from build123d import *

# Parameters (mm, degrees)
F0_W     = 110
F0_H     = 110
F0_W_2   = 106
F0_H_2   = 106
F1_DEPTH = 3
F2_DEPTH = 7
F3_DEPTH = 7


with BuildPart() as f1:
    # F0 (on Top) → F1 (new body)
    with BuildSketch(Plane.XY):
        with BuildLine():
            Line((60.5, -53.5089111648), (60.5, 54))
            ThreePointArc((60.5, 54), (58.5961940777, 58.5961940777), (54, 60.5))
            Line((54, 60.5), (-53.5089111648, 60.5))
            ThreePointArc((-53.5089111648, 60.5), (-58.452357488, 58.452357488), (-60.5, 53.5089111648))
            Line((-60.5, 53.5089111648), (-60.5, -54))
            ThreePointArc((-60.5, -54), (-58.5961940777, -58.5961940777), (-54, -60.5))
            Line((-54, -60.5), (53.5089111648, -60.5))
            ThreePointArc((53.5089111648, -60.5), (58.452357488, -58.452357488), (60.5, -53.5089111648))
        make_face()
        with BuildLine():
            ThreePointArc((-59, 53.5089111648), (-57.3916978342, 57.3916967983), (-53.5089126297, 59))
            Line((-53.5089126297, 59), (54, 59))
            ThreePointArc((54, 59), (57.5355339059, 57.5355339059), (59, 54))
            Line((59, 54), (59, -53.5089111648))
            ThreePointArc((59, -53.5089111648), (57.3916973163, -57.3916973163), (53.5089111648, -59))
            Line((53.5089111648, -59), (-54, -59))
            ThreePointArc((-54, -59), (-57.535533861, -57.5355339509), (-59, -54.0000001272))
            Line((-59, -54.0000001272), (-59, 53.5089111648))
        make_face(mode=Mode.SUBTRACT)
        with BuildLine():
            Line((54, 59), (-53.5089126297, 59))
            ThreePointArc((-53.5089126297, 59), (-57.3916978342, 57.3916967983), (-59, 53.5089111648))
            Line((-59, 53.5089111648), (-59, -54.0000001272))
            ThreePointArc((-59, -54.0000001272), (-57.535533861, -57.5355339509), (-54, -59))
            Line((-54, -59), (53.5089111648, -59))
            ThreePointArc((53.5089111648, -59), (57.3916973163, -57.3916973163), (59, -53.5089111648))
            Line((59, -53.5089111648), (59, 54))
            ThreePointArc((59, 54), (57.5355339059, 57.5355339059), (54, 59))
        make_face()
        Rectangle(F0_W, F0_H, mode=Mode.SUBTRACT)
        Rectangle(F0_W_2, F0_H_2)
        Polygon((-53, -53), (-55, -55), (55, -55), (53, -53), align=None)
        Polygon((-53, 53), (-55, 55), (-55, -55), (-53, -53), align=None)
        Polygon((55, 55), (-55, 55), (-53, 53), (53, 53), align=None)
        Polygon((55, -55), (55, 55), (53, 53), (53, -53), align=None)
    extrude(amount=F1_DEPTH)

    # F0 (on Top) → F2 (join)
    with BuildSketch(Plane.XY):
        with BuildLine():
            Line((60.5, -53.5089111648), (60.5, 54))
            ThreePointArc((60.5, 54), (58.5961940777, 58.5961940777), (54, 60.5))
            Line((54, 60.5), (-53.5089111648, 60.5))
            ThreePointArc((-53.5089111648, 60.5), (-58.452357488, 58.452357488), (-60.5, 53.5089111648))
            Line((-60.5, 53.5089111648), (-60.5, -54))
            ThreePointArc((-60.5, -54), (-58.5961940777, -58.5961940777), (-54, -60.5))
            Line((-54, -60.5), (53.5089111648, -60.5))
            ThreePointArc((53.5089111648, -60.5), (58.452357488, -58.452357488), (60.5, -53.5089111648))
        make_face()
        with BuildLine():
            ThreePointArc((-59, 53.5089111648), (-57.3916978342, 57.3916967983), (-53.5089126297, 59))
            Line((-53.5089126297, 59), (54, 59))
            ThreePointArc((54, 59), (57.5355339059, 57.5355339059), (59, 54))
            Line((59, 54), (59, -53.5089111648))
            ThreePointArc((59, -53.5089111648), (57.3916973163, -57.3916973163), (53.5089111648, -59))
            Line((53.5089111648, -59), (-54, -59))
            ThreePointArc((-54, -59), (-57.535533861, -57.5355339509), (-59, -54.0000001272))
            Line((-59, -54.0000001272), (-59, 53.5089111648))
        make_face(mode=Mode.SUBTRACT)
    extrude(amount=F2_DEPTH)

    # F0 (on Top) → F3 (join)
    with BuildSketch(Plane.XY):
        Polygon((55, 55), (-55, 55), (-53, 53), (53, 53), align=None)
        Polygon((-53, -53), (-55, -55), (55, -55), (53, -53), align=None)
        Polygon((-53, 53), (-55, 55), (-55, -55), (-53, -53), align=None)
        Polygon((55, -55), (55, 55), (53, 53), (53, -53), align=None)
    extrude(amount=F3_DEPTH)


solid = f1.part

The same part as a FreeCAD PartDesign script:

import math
import FreeCAD as App
import Part
import Sketcher

V = App.Vector
Q = App.Units.Quantity

doc = App.newDocument("Part")
params = doc.addObject("Spreadsheet::Sheet", "Params")
for row, (alias, value) in enumerate([
    ("sketch1_radius", "6.5 mm"),
    ("pad1_length", "3 mm"),
    ("sketch2_radius", "5 mm"),
    ("sketch2_radius2", "6.5 mm"),
    ("pad2_length", "7 mm"),
    ("sketch3_width", "110 mm"),
    ("sketch3_width2", "106 mm"),
    ("pad3_length", "7 mm"),
], start=1):
    params.set(f"A{row}", alias)
    params.set(f"B{row}", "=" + value)
    params.setAlias(f"B{row}", alias)

body = doc.addObject("PartDesign::Body", "Body")

sketch1 = body.newObject("Sketcher::SketchObject", "Sketch")
sketch1.AttachmentSupport = (doc.getObject("XY_Plane"), [""])
sketch1.MapMode = "FlatFace"
sketch1.addGeometry(Part.LineSegment(V(60, -54, 0), V(60, 54, 0)), False)
sketch1.addGeometry(Part.ArcOfCircle(Part.Circle(V(54, 54, 0), V(0, 0, 1), 6), math.radians(0), math.radians(90)), False)
sketch1.addGeometry(Part.LineSegment(V(54, 60, 0), V(-54, 60, 0)), False)
sketch1.addGeometry(Part.ArcOfCircle(Part.Circle(V(-54, 54, 0), V(0, 0, 1), 7), math.radians(90), math.radians(180)), False)
sketch1.addGeometry(Part.LineSegment(V(-60, 54, 0), V(-60, -54, 0)), False)
sketch1.addGeometry(Part.ArcOfCircle(Part.Circle(V(-54, -54, 0), V(0, 0, 1), 6), math.radians(180), math.radians(270)), False)
sketch1.addGeometry(Part.LineSegment(V(-54, -60, 0), V(54, -60, 0)), False)
sketch1.addGeometry(Part.ArcOfCircle(Part.Circle(V(54, -54, 0), V(0, 0, 1), 7), math.radians(-90), math.radians(0)), False)
sketch1.addConstraint(Sketcher.Constraint("Tangent", 0, 2, 1, 1))
sketch1.addConstraint(Sketcher.Constraint("Tangent", 1, 2, 2, 1))
sketch1.addConstraint(Sketcher.Constraint("Tangent", 2, 2, 3, 1))
sketch1.addConstraint(Sketcher.Constraint("Tangent", 3, 2, 4, 1))
sketch1.addConstraint(Sketcher.Constraint("Tangent", 4, 2, 5, 1))
sketch1.addConstraint(Sketcher.Constraint("Tangent", 5, 2, 6, 1))
sketch1.addConstraint(Sketcher.Constraint("Tangent", 6, 2, 7, 1))
sketch1.addConstraint(Sketcher.Constraint("Tangent", 7, 2, 0, 1))
sketch1.addConstraint(Sketcher.Constraint("Vertical", 0))
sketch1.addConstraint(Sketcher.Constraint("Horizontal", 2))
sketch1.addConstraint(Sketcher.Constraint("Vertical", 4))
sketch1.addConstraint(Sketcher.Constraint("Horizontal", 6))
sketch1.addConstraint(Sketcher.Constraint("Equal", 1, 5))
sketch1.addConstraint(Sketcher.Constraint("Equal", 3, 7))
sketch1.addConstraint(Sketcher.Constraint("Symmetric", 1, 3, 5, 3, -1, 1))
sketch1.addConstraint(Sketcher.Constraint("Equal", 6, 0))
sketch1.addConstraint(Sketcher.Constraint("Radius", 1, Q("6.5 mm")))
sketch1.addConstraint(Sketcher.Constraint("DistanceX", -1, 1, 1, 3, Q("54 mm")))
sketch1.addConstraint(Sketcher.Constraint("Radius", 3, Q("6.991089 mm")))
sketch1.setExpression("Constraints[16]", "Params.sketch1_radius")
pad1 = body.newObject("PartDesign::Pad", "Pad")
pad1.Profile = sketch1
pad1.setExpression("Length", "Params.pad1_length")

sketch2 = body.newObject("Sketcher::SketchObject", "Sketch001")
sketch2.AttachmentSupport = (doc.getObject("XY_Plane"), [""])
sketch2.MapMode = "FlatFace"
sketch2.addGeometry(Part.LineSegment(V(60, -54, 0), V(60, 54, 0)), False)
sketch2.addGeometry(Part.ArcOfCircle(Part.Circle(V(54, 54, 0), V(0, 0, 1), 6), math.radians(0), math.radians(90)), False)
sketch2.addGeometry(Part.LineSegment(V(54, 60, 0), V(-54, 60, 0)), False)
sketch2.addGeometry(Part.ArcOfCircle(Part.Circle(V(-54, 54, 0), V(0, 0, 1), 7), math.radians(90), math.radians(180)), False)
sketch2.addGeometry(Part.LineSegment(V(-60, 54, 0), V(-60, -54, 0)), False)
sketch2.addGeometry(Part.ArcOfCircle(Part.Circle(V(-54, -54, 0), V(0, 0, 1), 6), math.radians(180), math.radians(270)), False)
sketch2.addGeometry(Part.LineSegment(V(-54, -60, 0), V(54, -60, 0)), False)
sketch2.addGeometry(Part.ArcOfCircle(Part.Circle(V(54, -54, 0), V(0, 0, 1), 7), math.radians(-90), math.radians(0)), False)
sketch2.addGeometry(Part.LineSegment(V(-59, -54, 0), V(-59, 54, 0)), False)
sketch2.addGeometry(Part.ArcOfCircle(Part.Circle(V(-54, 54, 0), V(0, 0, 1), 5), math.radians(90), math.radians(180)), False)
sketch2.addGeometry(Part.LineSegment(V(-54, 59, 0), V(54, 59, 0)), False)
sketch2.addGeometry(Part.ArcOfCircle(Part.Circle(V(54, 54, 0), V(0, 0, 1), 5), math.radians(0), math.radians(90)), False)
sketch2.addGeometry(Part.LineSegment(V(59, 54, 0), V(59, -54, 0)), False)
sketch2.addGeometry(Part.ArcOfCircle(Part.Circle(V(54, -54, 0), V(0, 0, 1), 5), math.radians(-90), math.radians(0)), False)
sketch2.addGeometry(Part.LineSegment(V(54, -59, 0), V(-54, -59, 0)), False)
sketch2.addGeometry(Part.ArcOfCircle(Part.Circle(V(-54, -54, 0), V(0, 0, 1), 5), math.radians(-180), math.radians(-90)), False)
sketch2.addConstraint(Sketcher.Constraint("Tangent", 0, 2, 1, 1))
sketch2.addConstraint(Sketcher.Constraint("Tangent", 1, 2, 2, 1))
sketch2.addConstraint(Sketcher.Constraint("Tangent", 2, 2, 3, 1))
sketch2.addConstraint(Sketcher.Constraint("Tangent", 3, 2, 4, 1))
sketch2.addConstraint(Sketcher.Constraint("Tangent", 4, 2, 5, 1))
sketch2.addConstraint(Sketcher.Constraint("Tangent", 5, 2, 6, 1))
sketch2.addConstraint(Sketcher.Constraint("Tangent", 6, 2, 7, 1))
sketch2.addConstraint(Sketcher.Constraint("Tangent", 7, 2, 0, 1))
sketch2.addConstraint(Sketcher.Constraint("Tangent", 8, 2, 9, 2))
sketch2.addConstraint(Sketcher.Constraint("Tangent", 9, 1, 10, 1))
sketch2.addConstraint(Sketcher.Constraint("Tangent", 10, 2, 11, 2))
sketch2.addConstraint(Sketcher.Constraint("Tangent", 11, 1, 12, 1))
sketch2.addConstraint(Sketcher.Constraint("Tangent", 12, 2, 13, 2))
sketch2.addConstraint(Sketcher.Constraint("Tangent", 13, 1, 14, 1))
sketch2.addConstraint(Sketcher.Constraint("Tangent", 14, 2, 15, 2))
sketch2.addConstraint(Sketcher.Constraint("Tangent", 15, 1, 8, 1))
sketch2.addConstraint(Sketcher.Constraint("Vertical", 0))
sketch2.addConstraint(Sketcher.Constraint("Horizontal", 2))
sketch2.addConstraint(Sketcher.Constraint("Vertical", 4))
sketch2.addConstraint(Sketcher.Constraint("Horizontal", 6))
sketch2.addConstraint(Sketcher.Constraint("Vertical", 8))
sketch2.addConstraint(Sketcher.Constraint("Horizontal", 10))
sketch2.addConstraint(Sketcher.Constraint("Vertical", 12))
sketch2.addConstraint(Sketcher.Constraint("Horizontal", 14))
sketch2.addConstraint(Sketcher.Constraint("Coincident", 9, 3, 3, 3))
sketch2.addConstraint(Sketcher.Constraint("Coincident", 11, 3, 1, 3))
sketch2.addConstraint(Sketcher.Constraint("Coincident", 13, 3, 7, 3))
sketch2.addConstraint(Sketcher.Constraint("Equal", 1, 5))
sketch2.addConstraint(Sketcher.Constraint("Equal", 3, 7))
sketch2.addConstraint(Sketcher.Constraint("Equal", 11, 15))
sketch2.addConstraint(Sketcher.Constraint("Symmetric", 1, 3, 5, 3, -1, 1))
sketch2.addConstraint(Sketcher.Constraint("Equal", 14, 0))
sketch2.addConstraint(Sketcher.Constraint("Radius", 11, Q("5 mm")))
sketch2.addConstraint(Sketcher.Constraint("Radius", 1, Q("6.5 mm")))
sketch2.addConstraint(Sketcher.Constraint("DistanceX", -1, 1, 1, 3, Q("54 mm")))
sketch2.addConstraint(Sketcher.Constraint("Radius", 3, Q("6.991089 mm")))
sketch2.setExpression("Constraints[32]", "Params.sketch2_radius")
sketch2.setExpression("Constraints[33]", "Params.sketch2_radius2")
pad2 = body.newObject("PartDesign::Pad", "Pad001")
pad2.Profile = sketch2
pad2.setExpression("Length", "Params.pad2_length")

sketch3 = body.newObject("Sketcher::SketchObject", "Sketch002")
sketch3.AttachmentSupport = (doc.getObject("XY_Plane"), [""])
sketch3.MapMode = "FlatFace"
sketch3.addGeometry(Part.LineSegment(V(55, 55, 0), V(-55, 55, 0)), False)
sketch3.addGeometry(Part.LineSegment(V(-55, 55, 0), V(-55, -55, 0)), False)
sketch3.addGeometry(Part.LineSegment(V(-55, -55, 0), V(55, -55, 0)), False)
sketch3.addGeometry(Part.LineSegment(V(55, -55, 0), V(55, 55, 0)), False)
sketch3.addGeometry(Part.LineSegment(V(53, -53, 0), V(-53, -53, 0)), False)
sketch3.addGeometry(Part.LineSegment(V(-53, -53, 0), V(-53, 53, 0)), False)
sketch3.addGeometry(Part.LineSegment(V(-53, 53, 0), V(53, 53, 0)), False)
sketch3.addGeometry(Part.LineSegment(V(53, 53, 0), V(53, -53, 0)), False)
sketch3.addConstraint(Sketcher.Constraint("Coincident", 0, 2, 1, 1))
sketch3.addConstraint(Sketcher.Constraint("Coincident", 1, 2, 2, 1))
sketch3.addConstraint(Sketcher.Constraint("Coincident", 2, 2, 3, 1))
sketch3.addConstraint(Sketcher.Constraint("Coincident", 3, 2, 0, 1))
sketch3.addConstraint(Sketcher.Constraint("Coincident", 4, 2, 5, 1))
sketch3.addConstraint(Sketcher.Constraint("Coincident", 5, 2, 6, 1))
sketch3.addConstraint(Sketcher.Constraint("Coincident", 6, 2, 7, 1))
sketch3.addConstraint(Sketcher.Constraint("Coincident", 7, 2, 4, 1))
sketch3.addConstraint(Sketcher.Constraint("Horizontal", 0))
sketch3.addConstraint(Sketcher.Constraint("Vertical", 1))
sketch3.addConstraint(Sketcher.Constraint("Horizontal", 2))
sketch3.addConstraint(Sketcher.Constraint("Vertical", 3))
sketch3.addConstraint(Sketcher.Constraint("Horizontal", 4))
sketch3.addConstraint(Sketcher.Constraint("Vertical", 5))
sketch3.addConstraint(Sketcher.Constraint("Horizontal", 6))
sketch3.addConstraint(Sketcher.Constraint("Vertical", 7))
sketch3.addConstraint(Sketcher.Constraint("Symmetric", 0, 2, 2, 2, -1, 1))
sketch3.addConstraint(Sketcher.Constraint("Symmetric", 4, 2, 6, 2, -1, 1))
sketch3.addConstraint(Sketcher.Constraint("Equal", 2, 1))
sketch3.addConstraint(Sketcher.Constraint("Equal", 6, 5))
sketch3.addConstraint(Sketcher.Constraint("DistanceX", 0, 2, 0, 1, Q("110 mm")))
sketch3.addConstraint(Sketcher.Constraint("DistanceX", 4, 2, 4, 1, Q("106 mm")))
sketch3.setExpression("Constraints[20]", "Params.sketch3_width")
sketch3.setExpression("Constraints[21]", "Params.sketch3_width2")
pad3 = body.newObject("PartDesign::Pad", "Pad002")
pad3.Profile = sketch3
pad3.setExpression("Length", "Params.pad3_length")

doc.recompute()
